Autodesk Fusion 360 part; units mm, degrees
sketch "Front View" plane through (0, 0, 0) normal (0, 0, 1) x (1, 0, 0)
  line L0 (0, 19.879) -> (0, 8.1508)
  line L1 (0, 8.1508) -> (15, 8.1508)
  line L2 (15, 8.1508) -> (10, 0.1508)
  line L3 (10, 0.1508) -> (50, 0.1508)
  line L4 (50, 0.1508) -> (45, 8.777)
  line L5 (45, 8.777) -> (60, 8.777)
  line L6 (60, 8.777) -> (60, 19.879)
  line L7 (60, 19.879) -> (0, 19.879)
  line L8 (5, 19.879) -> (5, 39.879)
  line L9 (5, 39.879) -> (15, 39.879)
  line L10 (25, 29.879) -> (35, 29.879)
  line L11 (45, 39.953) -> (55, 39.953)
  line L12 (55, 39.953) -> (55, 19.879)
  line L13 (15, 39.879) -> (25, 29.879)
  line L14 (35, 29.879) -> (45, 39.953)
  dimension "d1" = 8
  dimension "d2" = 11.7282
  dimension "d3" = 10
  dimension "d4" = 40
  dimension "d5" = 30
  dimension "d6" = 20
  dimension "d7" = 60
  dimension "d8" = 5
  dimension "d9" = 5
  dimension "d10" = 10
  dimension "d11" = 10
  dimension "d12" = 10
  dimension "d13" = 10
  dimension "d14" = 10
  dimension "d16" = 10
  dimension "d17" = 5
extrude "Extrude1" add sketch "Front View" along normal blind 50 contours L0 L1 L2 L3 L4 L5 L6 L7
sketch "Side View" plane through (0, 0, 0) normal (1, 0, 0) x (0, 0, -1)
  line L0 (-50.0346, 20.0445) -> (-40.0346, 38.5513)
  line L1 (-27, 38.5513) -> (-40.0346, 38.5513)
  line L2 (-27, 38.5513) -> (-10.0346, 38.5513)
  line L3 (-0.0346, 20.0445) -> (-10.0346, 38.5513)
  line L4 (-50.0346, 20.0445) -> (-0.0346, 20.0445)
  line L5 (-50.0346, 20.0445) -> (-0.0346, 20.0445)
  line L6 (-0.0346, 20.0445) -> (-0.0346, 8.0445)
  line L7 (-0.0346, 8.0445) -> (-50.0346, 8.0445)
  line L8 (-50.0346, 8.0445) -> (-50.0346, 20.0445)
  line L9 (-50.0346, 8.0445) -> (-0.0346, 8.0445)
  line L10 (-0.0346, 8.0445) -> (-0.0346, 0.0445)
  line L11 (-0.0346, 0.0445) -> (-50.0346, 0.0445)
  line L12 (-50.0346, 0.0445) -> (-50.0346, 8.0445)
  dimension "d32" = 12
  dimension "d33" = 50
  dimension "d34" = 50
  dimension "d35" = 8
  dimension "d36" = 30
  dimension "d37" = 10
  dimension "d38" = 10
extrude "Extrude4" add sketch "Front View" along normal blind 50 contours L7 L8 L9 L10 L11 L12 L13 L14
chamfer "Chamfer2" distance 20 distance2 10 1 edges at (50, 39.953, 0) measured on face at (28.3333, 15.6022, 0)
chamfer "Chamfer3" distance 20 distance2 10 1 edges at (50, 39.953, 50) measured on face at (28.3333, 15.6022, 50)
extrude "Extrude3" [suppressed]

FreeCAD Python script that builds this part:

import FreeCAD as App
import Part
import Sketcher

V = App.Vector


def edges_at(feature, points):
    """Names of the edges that pass closest to the given points."""
    edges = feature.Shape.Edges
    near = lambda p: min(range(len(edges)), key=lambda i: edges[i].distToShape(Part.Vertex(*p))[0])
    return sorted({f"Edge{near(p) + 1}" for p in points})

doc = App.newDocument("Part")
body = doc.addObject("PartDesign::Body", "Body")

sketch1 = doc.addObject("Sketcher::SketchObject", "Sketch")
body.addObject(sketch1)
sketch1.AttachmentSupport = (doc.XY_Plane, [""])
sketch1.MapMode = "FlatFace"
sketch1.addGeometry(Part.LineSegment(V(60, 19.879, 0), V(0, 19.879, 0)), False)
sketch1.addGeometry(Part.LineSegment(V(0, 19.879, 0), V(0, 8.1508, 0)), False)
sketch1.addGeometry(Part.LineSegment(V(0, 8.1508, 0), V(15, 8.1508, 0)), False)
sketch1.addGeometry(Part.LineSegment(V(15, 8.1508, 0), V(10, 0.1508, 0)), False)
sketch1.addGeometry(Part.LineSegment(V(10, 0.1508, 0), V(50, 0.1508, 0)), False)
sketch1.addGeometry(Part.LineSegment(V(50, 0.1508, 0), V(45, 8.777, 0)), False)
sketch1.addGeometry(Part.LineSegment(V(45, 8.777, 0), V(60, 8.777, 0)), False)
sketch1.addGeometry(Part.LineSegment(V(60, 8.777, 0), V(60, 19.879, 0)), False)
sketch1.addConstraint(Sketcher.Constraint("Coincident", 0, 2, 1, 1))
sketch1.addConstraint(Sketcher.Constraint("Coincident", 1, 2, 2, 1))
sketch1.addConstraint(Sketcher.Constraint("Coincident", 2, 2, 3, 1))
sketch1.addConstraint(Sketcher.Constraint("Coincident", 3, 2, 4, 1))
sketch1.addConstraint(Sketcher.Constraint("Coincident", 4, 2, 5, 1))
sketch1.addConstraint(Sketcher.Constraint("Coincident", 5, 2, 6, 1))
sketch1.addConstraint(Sketcher.Constraint("Coincident", 6, 2, 7, 1))
sketch1.addConstraint(Sketcher.Constraint("Coincident", 7, 2, 0, 1))
sketch1.addConstraint(Sketcher.Constraint("Horizontal", 0))
sketch1.addConstraint(Sketcher.Constraint("Vertical", 1))
sketch1.addConstraint(Sketcher.Constraint("Horizontal", 2))
sketch1.addConstraint(Sketcher.Constraint("Horizontal", 4))
sketch1.addConstraint(Sketcher.Constraint("Horizontal", 6))
sketch1.addConstraint(Sketcher.Constraint("Vertical", 7))
sketch1.addConstraint(Sketcher.Constraint("PointOnObject", 0, 2, -2))
sketch1.addConstraint(Sketcher.Constraint("Equal", 2, 6))
sketch1.addConstraint(Sketcher.Constraint("DistanceX", 0, 2, 0, 1, 60.0))
sketch1.addConstraint(Sketcher.Constraint("DistanceX", 4, 1, 4, 2, 40.0))
sketch1.addConstraint(Sketcher.Constraint("DistanceX", -1, 1, 3, 2, 10.0))
sketch1.addConstraint(Sketcher.Constraint("DistanceX", 3, 2, 2, 2, 5.0))
sketch1.addConstraint(Sketcher.Constraint("DistanceY", 3, 2, 2, 2, 8.0))
sketch1.addConstraint(Sketcher.Constraint("DistanceY", 1, 2, 1, 1, 11.7282))
sketch1.addConstraint(Sketcher.Constraint("DistanceY", 7, 1, 7, 2, 11.102))
sketch1.addConstraint(Sketcher.Constraint("DistanceY", -1, 1, 0, 2, 19.879))
pad1 = doc.addObject("PartDesign::Pad", "Pad")
body.addObject(pad1)
pad1.Profile = sketch1
pad1.Length = 50

sketch2 = doc.addObject("Sketcher::SketchObject", "Sketch001")
body.addObject(sketch2)
sketch2.AttachmentSupport = (doc.XY_Plane, [""])
sketch2.MapMode = "FlatFace"
sketch2.addGeometry(Part.LineSegment(V(5, 39.879, 0), V(5, 19.879, 0)), False)
sketch2.addGeometry(Part.LineSegment(V(5, 19.879, 0), V(55, 19.879, 0)), False)
sketch2.addGeometry(Part.LineSegment(V(55, 19.879, 0), V(55, 39.953, 0)), False)
sketch2.addGeometry(Part.LineSegment(V(55, 39.953, 0), V(45, 39.953, 0)), False)
sketch2.addGeometry(Part.LineSegment(V(45, 39.953, 0), V(35, 29.879, 0)), False)
sketch2.addGeometry(Part.LineSegment(V(35, 29.879, 0), V(25, 29.879, 0)), False)
sketch2.addGeometry(Part.LineSegment(V(25, 29.879, 0), V(15, 39.879, 0)), False)
sketch2.addGeometry(Part.LineSegment(V(15, 39.879, 0), V(5, 39.879, 0)), False)
sketch2.addConstraint(Sketcher.Constraint("Coincident", 0, 2, 1, 1))
sketch2.addConstraint(Sketcher.Constraint("Coincident", 1, 2, 2, 1))
sketch2.addConstraint(Sketcher.Constraint("Coincident", 2, 2, 3, 1))
sketch2.addConstraint(Sketcher.Constraint("Coincident", 3, 2, 4, 1))
sketch2.addConstraint(Sketcher.Constraint("Coincident", 4, 2, 5, 1))
sketch2.addConstraint(Sketcher.Constraint("Coincident", 5, 2, 6, 1))
sketch2.addConstraint(Sketcher.Constraint("Coincident", 6, 2, 7, 1))
sketch2.addConstraint(Sketcher.Constraint("Coincident", 7, 2, 0, 1))
sketch2.addConstraint(Sketcher.Constraint("Vertical", 0))
sketch2.addConstraint(Sketcher.Constraint("Horizontal", 1))
sketch2.addConstraint(Sketcher.Constraint("Vertical", 2))
sketch2.addConstraint(Sketcher.Constraint("Horizontal", 3))
sketch2.addConstraint(Sketcher.Constraint("Horizontal", 5))
sketch2.addConstraint(Sketcher.Constraint("Horizontal", 7))
sketch2.addConstraint(Sketcher.Constraint("Equal", 3, 5))
sketch2.addConstraint(Sketcher.Constraint("Equal", 5, 7))
sketch2.addConstraint(Sketcher.Constraint("DistanceX", 3, 2, 3, 1, 10.0))
sketch2.addConstraint(Sketcher.Constraint("DistanceY", 0, 2, 0, 1, 20.0))
sketch2.addConstraint(Sketcher.Constraint("DistanceX", -1, 1, 0, 2, 5.0))
sketch2.addConstraint(Sketcher.Constraint("DistanceX", 0, 2, 3, 2, 40.0))
sketch2.addConstraint(Sketcher.Constraint("DistanceX", 4, 2, 3, 2, 10.0))
sketch2.addConstraint(Sketcher.Constraint("DistanceY", 1, 2, 4, 2, 10.0))
sketch2.addConstraint(Sketcher.Constraint("DistanceY", 2, 1, 2, 2, 20.074))
sketch2.addConstraint(Sketcher.Constraint("DistanceY", -1, 1, 0, 2, 19.879))
pad2 = doc.addObject("PartDesign::Pad", "Pad001")
body.addObject(pad2)
pad2.Profile = sketch2
pad2.Length = 50
doc.recompute()

chamfer = doc.addObject("PartDesign::Chamfer", "Chamfer")
body.addObject(chamfer)
chamfer.Base = (pad2, edges_at(pad2, [(50, 39.953, 0)]))
chamfer.ChamferType = "Two distances"
chamfer.Size = 20
chamfer.Size2 = 10
chamfer.FlipDirection = True
doc.recompute()

chamfer2 = doc.addObject("PartDesign::Chamfer", "Chamfer001")
body.addObject(chamfer2)
chamfer2.Base = (chamfer, edges_at(chamfer, [(50, 39.953, 50)]))
chamfer2.ChamferType = "Two distances"
chamfer2.Size = 20
chamfer2.Size2 = 10
chamfer2.FlipDirection = True

doc.recompute()
